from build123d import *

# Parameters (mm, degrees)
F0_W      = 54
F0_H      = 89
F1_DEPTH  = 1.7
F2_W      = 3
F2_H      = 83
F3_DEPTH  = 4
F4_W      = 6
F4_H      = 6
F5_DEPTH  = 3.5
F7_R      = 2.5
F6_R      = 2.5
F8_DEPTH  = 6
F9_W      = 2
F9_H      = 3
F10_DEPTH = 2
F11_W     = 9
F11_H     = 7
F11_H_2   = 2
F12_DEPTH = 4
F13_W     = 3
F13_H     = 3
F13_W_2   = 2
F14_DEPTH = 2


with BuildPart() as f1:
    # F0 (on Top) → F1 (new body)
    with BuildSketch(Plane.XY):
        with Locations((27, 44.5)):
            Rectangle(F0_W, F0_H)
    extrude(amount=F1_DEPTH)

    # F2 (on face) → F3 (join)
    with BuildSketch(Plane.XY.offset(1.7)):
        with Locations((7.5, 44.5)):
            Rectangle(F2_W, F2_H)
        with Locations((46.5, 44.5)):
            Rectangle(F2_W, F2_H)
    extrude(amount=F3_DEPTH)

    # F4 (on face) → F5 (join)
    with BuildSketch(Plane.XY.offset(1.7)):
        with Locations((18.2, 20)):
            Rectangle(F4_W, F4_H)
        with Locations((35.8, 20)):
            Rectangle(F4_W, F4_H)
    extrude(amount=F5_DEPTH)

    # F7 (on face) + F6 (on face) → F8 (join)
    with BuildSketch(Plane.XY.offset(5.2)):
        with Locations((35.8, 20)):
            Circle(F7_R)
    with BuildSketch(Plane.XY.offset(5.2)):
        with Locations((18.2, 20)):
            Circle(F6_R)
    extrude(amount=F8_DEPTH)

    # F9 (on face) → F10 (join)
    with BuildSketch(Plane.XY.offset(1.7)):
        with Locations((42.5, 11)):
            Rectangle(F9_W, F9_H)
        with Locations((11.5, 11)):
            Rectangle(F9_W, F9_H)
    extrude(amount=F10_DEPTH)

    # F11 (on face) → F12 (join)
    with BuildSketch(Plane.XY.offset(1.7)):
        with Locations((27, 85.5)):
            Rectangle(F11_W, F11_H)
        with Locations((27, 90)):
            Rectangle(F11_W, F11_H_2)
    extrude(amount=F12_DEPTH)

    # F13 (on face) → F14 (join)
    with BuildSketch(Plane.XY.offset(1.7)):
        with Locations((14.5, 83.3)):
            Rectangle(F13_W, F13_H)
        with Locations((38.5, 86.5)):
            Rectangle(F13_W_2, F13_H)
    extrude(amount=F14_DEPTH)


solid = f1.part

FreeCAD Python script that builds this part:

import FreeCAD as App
import Part
import Sketcher

V = App.Vector
Q = App.Units.Quantity


def add_polygon(sketch, points):
    """Adds a closed chain of lines whose ends are joined by coincident constraints."""
    first, n = sketch.GeometryCount, len(points)
    for a, b in zip(points, points[1:] + points[:1]):
        sketch.addGeometry(Part.LineSegment(App.Vector(*a, 0), App.Vector(*b, 0)), False)
    for i in range(n):
        sketch.addConstraint(Sketcher.Constraint("Coincident", first + i, 2, first + (i + 1) % n, 1))

doc = App.newDocument("Part")
body = doc.addObject("PartDesign::Body", "Body")

sketch1 = doc.addObject("Sketcher::SketchObject", "Sketch")
body.addObject(sketch1)
sketch1.AttachmentSupport = (doc.XY_Plane, [""])
sketch1.MapMode = "FlatFace"
add_polygon(sketch1, [(0, 89), (0, 0), (54, 0), (54, 89)])
sketch1.addConstraint([
    Sketcher.Constraint("Vertical", 0),
    Sketcher.Constraint("Horizontal", 1),
    Sketcher.Constraint("Vertical", 2),
    Sketcher.Constraint("Horizontal", 3),
    Sketcher.Constraint("Coincident", 0, 2, -1, 1),
    Sketcher.Constraint("DistanceX", 1, 1, 1, 2, Q("54 mm")),
    Sketcher.Constraint("DistanceY", 0, 2, 0, 1, Q("89 mm")),
])
pad1 = doc.addObject("PartDesign::Pad", "Pad")
body.addObject(pad1)
pad1.Profile = sketch1
pad1.Length = 1.7

sketch2 = doc.addObject("Sketcher::SketchObject", "Sketch001")
body.addObject(sketch2)
sketch2.AttachmentSupport = (doc.XY_Plane, [""])
sketch2.MapMode = "FlatFace"
sketch2.AttachmentOffset = App.Placement(V(0, 0, 1.7), App.Rotation())
add_polygon(sketch2, [(6, 86), (6, 3), (9, 3), (9, 86)])
add_polygon(sketch2, [(45, 86), (45, 3), (48, 3), (48, 86)])
sketch2.addConstraint([
    Sketcher.Constraint("Vertical", 0),
    Sketcher.Constraint("Horizontal", 1),
    Sketcher.Constraint("Vertical", 2),
    Sketcher.Constraint("Horizontal", 3),
    Sketcher.Constraint("Vertical", 4),
    Sketcher.Constraint("Horizontal", 5),
    Sketcher.Constraint("Vertical", 6),
    Sketcher.Constraint("Horizontal", 7),
    Sketcher.Constraint("Horizontal", 1, 2, 4, 2),
    Sketcher.Constraint("Horizontal", 3, 2, 6, 2),
    Sketcher.Constraint("Equal", 3, 5),
    Sketcher.Constraint("DistanceX", 1, 1, 1, 2, Q("3 mm")),
    Sketcher.Constraint("DistanceY", 0, 2, 0, 1, Q("83 mm")),
    Sketcher.Constraint("DistanceX", -1, 1, 0, 2, Q("6 mm")),
    Sketcher.Constraint("DistanceY", -1, 1, 0, 2, Q("3 mm")),
    Sketcher.Constraint("DistanceX", -1, 1, 4, 2, Q("45 mm")),
])
pad2 = doc.addObject("PartDesign::Pad", "Pad001")
body.addObject(pad2)
pad2.Profile = sketch2
pad2.Length = 4

sketch3 = doc.addObject("Sketcher::SketchObject", "Sketch002")
body.addObject(sketch3)
sketch3.AttachmentSupport = (doc.XY_Plane, [""])
sketch3.MapMode = "FlatFace"
sketch3.AttachmentOffset = App.Placement(V(0, 0, 1.7), App.Rotation())
add_polygon(sketch3, [(15, 23), (15, 17), (21, 17), (21, 23)])
add_polygon(sketch3, [(33, 23), (33, 17), (39, 17), (39, 23)])
sketch3.addConstraint([
    Sketcher.Constraint("Vertical", 0),
    Sketcher.Constraint("Horizontal", 1),
    Sketcher.Constraint("Vertical", 2),
    Sketcher.Constraint("Horizontal", 3),
    Sketcher.Constraint("Vertical", 4),
    Sketcher.Constraint("Horizontal", 5),
    Sketcher.Constraint("Vertical", 6),
    Sketcher.Constraint("Horizontal", 7),
    Sketcher.Constraint("Horizontal", 1, 2, 4, 2),
    Sketcher.Constraint("Horizontal", 3, 2, 6, 2),
    Sketcher.Constraint("Equal", 3, 5),
    Sketcher.Constraint("Equal", 7, 0),
    Sketcher.Constraint("DistanceX", 1, 1, 1, 2, Q("6 mm")),
    Sketcher.Constraint("DistanceY", -1, 1, 0, 2, Q("17 mm")),
    Sketcher.Constraint("DistanceX", -1, 1, 0, 2, Q("15.2 mm")),
    Sketcher.Constraint("DistanceX", -1, 1, 4, 2, Q("32.8 mm")),
])
pad3 = doc.addObject("PartDesign::Pad", "Pad002")
body.addObject(pad3)
pad3.Profile = sketch3
pad3.Length = 3.5

sketch4 = doc.addObject("Sketcher::SketchObject", "Sketch003")
body.addObject(sketch4)
sketch4.AttachmentSupport = (doc.XY_Plane, [""])
sketch4.MapMode = "FlatFace"
sketch4.AttachmentOffset = App.Placement(V(0, 0, 5.2), App.Rotation())
sketch4.addGeometry([
    Part.Circle(V(35.8, 20, 0), V(0, 0, 1), 2.5),
    Part.Circle(V(18.2, 20, 0), V(0, 0, 1), 2.5),
], False)
sketch4.addConstraint([
    Sketcher.Constraint("Equal", 0, 1),
    Sketcher.Constraint("Horizontal", 0, 3, 1, 3),
    Sketcher.Constraint("Diameter", 0, Q("5 mm")),
    Sketcher.Constraint("DistanceY", -1, 1, 0, 3, Q("20 mm")),
    Sketcher.Constraint("DistanceX", -1, 1, 0, 3, Q("35.8 mm")),
    Sketcher.Constraint("DistanceX", -1, 1, 1, 3, Q("18.2 mm")),
])
pad4 = doc.addObject("PartDesign::Pad", "Pad003")
body.addObject(pad4)
pad4.Profile = sketch4
pad4.Length = 6

sketch5 = doc.addObject("Sketcher::SketchObject", "Sketch004")
body.addObject(sketch5)
sketch5.AttachmentSupport = (doc.XY_Plane, [""])
sketch5.MapMode = "FlatFace"
sketch5.AttachmentOffset = App.Placement(V(0, 0, 1.7), App.Rotation())
add_polygon(sketch5, [(41.5, 12.5), (41.5, 9.5), (43.5, 9.5), (43.5, 12.5)])
add_polygon(sketch5, [(10.5, 12.5), (10.5, 9.5), (12.5, 9.5), (12.5, 12.5)])
sketch5.addConstraint([
    Sketcher.Constraint("Vertical", 0),
    Sketcher.Constraint("Horizontal", 1),
    Sketcher.Constraint("Vertical", 2),
    Sketcher.Constraint("Horizontal", 3),
    Sketcher.Constraint("Vertical", 4),
    Sketcher.Constraint("Horizontal", 5),
    Sketcher.Constraint("Vertical", 6),
    Sketcher.Constraint("Horizontal", 7),
    Sketcher.Constraint("Horizontal", 1, 2, 4, 2),
    Sketcher.Constraint("Horizontal", 3, 2, 6, 2),
    Sketcher.Constraint("Equal", 3, 5),
    Sketcher.Constraint("DistanceX", 1, 1, 1, 2, Q("2 mm")),
    Sketcher.Constraint("DistanceY", 0, 2, 0, 1, Q("3 mm")),
    Sketcher.Constraint("DistanceX", 4, 2, 0, 2, Q("31 mm")),
    Sketcher.Constraint("DistanceX", -1, 1, 0, 2, Q("41.5 mm")),
    Sketcher.Constraint("DistanceY", -1, 1, 0, 2, Q("9.5 mm")),
])
pad5 = doc.addObject("PartDesign::Pad", "Pad004")
body.addObject(pad5)
pad5.Profile = sketch5
pad5.Length = 2

sketch6 = doc.addObject("Sketcher::SketchObject", "Sketch005")
body.addObject(sketch6)
sketch6.AttachmentSupport = (doc.XY_Plane, [""])
sketch6.MapMode = "FlatFace"
sketch6.AttachmentOffset = App.Placement(V(0, 0, 1.7), App.Rotation())
add_polygon(sketch6, [(22, 82), (32, 82), (32, 91), (22, 91)])
sketch6.addConstraint([
    Sketcher.Constraint("Horizontal", 0),
    Sketcher.Constraint("Vertical", 1),
    Sketcher.Constraint("Horizontal", 2),
    Sketcher.Constraint("Vertical", 3),
    Sketcher.Constraint("Equal", 2, 1),
    Sketcher.Constraint("DistanceX", 0, 1, 0, 2, Q("9 mm")),
    Sketcher.Constraint("DistanceY", -1, 1, 0, 2, Q("82 mm")),
    Sketcher.Constraint("DistanceX", -1, 1, 0, 2, Q("31.5 mm")),
])
pad6 = doc.addObject("PartDesign::Pad", "Pad005")
body.addObject(pad6)
pad6.Profile = sketch6
pad6.Length = 4

sketch7 = doc.addObject("Sketcher::SketchObject", "Sketch006")
body.addObject(sketch7)
sketch7.AttachmentSupport = (doc.XY_Plane, [""])
sketch7.MapMode = "FlatFace"
sketch7.AttachmentOffset = App.Placement(V(0, 0, 1.7), App.Rotation())
add_polygon(sketch7, [(13, 84.8), (13, 81.8), (16, 81.8), (16, 84.8)])
add_polygon(sketch7, [(37.5, 88), (37.5, 85), (39.5, 85), (39.5, 88)])
sketch7.addConstraint([
    Sketcher.Constraint("Vertical", 0),
    Sketcher.Constraint("Horizontal", 1),
    Sketcher.Constraint("Vertical", 2),
    Sketcher.Constraint("Horizontal", 3),
    Sketcher.Constraint("Vertical", 4),
    Sketcher.Constraint("Horizontal", 5),
    Sketcher.Constraint("Vertical", 6),
    Sketcher.Constraint("Horizontal", 7),
    Sketcher.Constraint("Equal", 3, 0),
    Sketcher.Constraint("Equal", 2, 4),
    Sketcher.Constraint("DistanceX", 1, 1, 1, 2, Q("3 mm")),
    Sketcher.Constraint("DistanceX", 5, 1, 5, 2, Q("2 mm")),
    Sketcher.Constraint("DistanceX", -1, 1, 0, 2, Q("13 mm")),
    Sketcher.Constraint("DistanceY", -1, 1, 4, 2, Q("85 mm")),
    Sketcher.Constraint("DistanceY", -1, 1, 0, 2, Q("81.8 mm")),
    Sketcher.Constraint("DistanceX", -1, 1, 4, 2, Q("37.5 mm")),
])
pad7 = doc.addObject("PartDesign::Pad", "Pad006")
body.addObject(pad7)
pad7.Profile = sketch7
pad7.Length = 2

doc.recompute()
